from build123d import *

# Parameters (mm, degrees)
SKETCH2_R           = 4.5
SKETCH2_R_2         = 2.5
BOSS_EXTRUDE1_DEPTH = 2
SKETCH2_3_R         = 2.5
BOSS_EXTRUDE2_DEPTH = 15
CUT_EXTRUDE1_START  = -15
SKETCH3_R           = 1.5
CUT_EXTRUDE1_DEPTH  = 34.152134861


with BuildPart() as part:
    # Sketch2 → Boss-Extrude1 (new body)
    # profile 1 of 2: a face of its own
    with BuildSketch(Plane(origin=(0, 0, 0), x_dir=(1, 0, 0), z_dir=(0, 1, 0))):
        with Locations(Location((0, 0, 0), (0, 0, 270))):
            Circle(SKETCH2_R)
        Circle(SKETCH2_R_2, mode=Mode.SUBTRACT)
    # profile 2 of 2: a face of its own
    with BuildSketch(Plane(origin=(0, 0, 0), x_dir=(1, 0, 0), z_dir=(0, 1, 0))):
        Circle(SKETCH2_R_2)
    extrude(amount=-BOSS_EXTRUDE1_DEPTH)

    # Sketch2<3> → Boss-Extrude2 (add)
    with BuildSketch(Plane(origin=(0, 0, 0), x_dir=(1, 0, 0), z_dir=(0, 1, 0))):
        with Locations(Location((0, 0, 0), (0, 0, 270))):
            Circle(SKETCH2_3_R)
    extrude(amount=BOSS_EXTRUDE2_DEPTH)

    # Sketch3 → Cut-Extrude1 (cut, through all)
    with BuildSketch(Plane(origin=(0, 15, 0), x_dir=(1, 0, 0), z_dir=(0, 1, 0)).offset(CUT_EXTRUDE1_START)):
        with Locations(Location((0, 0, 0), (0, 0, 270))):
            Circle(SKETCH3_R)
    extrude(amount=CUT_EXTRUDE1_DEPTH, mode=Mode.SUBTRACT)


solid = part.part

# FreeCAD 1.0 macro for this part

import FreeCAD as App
import Part
import Sketcher

doc = App.newDocument("Part")
params = doc.addObject("Spreadsheet::Sheet", "Params")
for row, (alias, value) in enumerate([
    ("sketch1_diameter", "9 mm"),
    ("pad1_length", "2 mm"),
    ("sketch2_diameter", "5 mm"),
    ("pad2_length", "15 mm"),
    ("sketch3_diameter", "3 mm"),
], start=1):
    params.set(f"A{row}", alias)
    params.set(f"B{row}", "=" + value)
    params.setAlias(f"B{row}", alias)

body = doc.addObject("PartDesign::Body", "Body")

sketch1 = body.newObject("Sketcher::SketchObject", "Sketch")
sketch1.AttachmentSupport = (doc.getObject("XZ_Plane"), [""])
sketch1.MapMode = "FlatFace"
sketch1.addGeometry(Part.Circle(App.Vector(0, 0, 0), App.Vector(0, 0, 1), 4.5), False)
sketch1.addConstraint(Sketcher.Constraint("Coincident", 0, 3, -1, 1))
sketch1.addConstraint(Sketcher.Constraint("Diameter", 0, 9.0))
sketch1.setExpression("Constraints[1]", "Params.sketch1_diameter")
pad1 = body.newObject("PartDesign::Pad", "Pad")
pad1.Profile = sketch1
pad1.setExpression("Length", "Params.pad1_length")

sketch2 = body.newObject("Sketcher::SketchObject", "Sketch001")
sketch2.AttachmentSupport = (doc.getObject("XZ_Plane"), [""])
sketch2.MapMode = "FlatFace"
sketch2.addGeometry(Part.Circle(App.Vector(0, 0, 0), App.Vector(0, 0, 1), 2.5), False)
sketch2.addConstraint(Sketcher.Constraint("Coincident", 0, 3, -1, 1))
sketch2.addConstraint(Sketcher.Constraint("Diameter", 0, 5.0))
sketch2.setExpression("Constraints[1]", "Params.sketch2_diameter")
pad2 = body.newObject("PartDesign::Pad", "Pad001")
pad2.Profile = sketch2
pad2.setExpression("Length", "Params.pad2_length")
pad2.Reversed = True

sketch3 = body.newObject("Sketcher::SketchObject", "Sketch002")
sketch3.AttachmentSupport = (doc.getObject("XZ_Plane"), [""])
sketch3.MapMode = "FlatFace"
sketch3.addGeometry(Part.Circle(App.Vector(0, 0, 0), App.Vector(0, 0, 1), 1.5), False)
sketch3.addConstraint(Sketcher.Constraint("Coincident", 0, 3, -1, 1))
sketch3.addConstraint(Sketcher.Constraint("Diameter", 0, 3.0))
sketch3.setExpression("Constraints[1]", "Params.sketch3_diameter")
pocket1 = body.newObject("PartDesign::Pocket", "Pocket")
pocket1.Profile = sketch3
pocket1.Type = "ThroughAll"

doc.recompute()
